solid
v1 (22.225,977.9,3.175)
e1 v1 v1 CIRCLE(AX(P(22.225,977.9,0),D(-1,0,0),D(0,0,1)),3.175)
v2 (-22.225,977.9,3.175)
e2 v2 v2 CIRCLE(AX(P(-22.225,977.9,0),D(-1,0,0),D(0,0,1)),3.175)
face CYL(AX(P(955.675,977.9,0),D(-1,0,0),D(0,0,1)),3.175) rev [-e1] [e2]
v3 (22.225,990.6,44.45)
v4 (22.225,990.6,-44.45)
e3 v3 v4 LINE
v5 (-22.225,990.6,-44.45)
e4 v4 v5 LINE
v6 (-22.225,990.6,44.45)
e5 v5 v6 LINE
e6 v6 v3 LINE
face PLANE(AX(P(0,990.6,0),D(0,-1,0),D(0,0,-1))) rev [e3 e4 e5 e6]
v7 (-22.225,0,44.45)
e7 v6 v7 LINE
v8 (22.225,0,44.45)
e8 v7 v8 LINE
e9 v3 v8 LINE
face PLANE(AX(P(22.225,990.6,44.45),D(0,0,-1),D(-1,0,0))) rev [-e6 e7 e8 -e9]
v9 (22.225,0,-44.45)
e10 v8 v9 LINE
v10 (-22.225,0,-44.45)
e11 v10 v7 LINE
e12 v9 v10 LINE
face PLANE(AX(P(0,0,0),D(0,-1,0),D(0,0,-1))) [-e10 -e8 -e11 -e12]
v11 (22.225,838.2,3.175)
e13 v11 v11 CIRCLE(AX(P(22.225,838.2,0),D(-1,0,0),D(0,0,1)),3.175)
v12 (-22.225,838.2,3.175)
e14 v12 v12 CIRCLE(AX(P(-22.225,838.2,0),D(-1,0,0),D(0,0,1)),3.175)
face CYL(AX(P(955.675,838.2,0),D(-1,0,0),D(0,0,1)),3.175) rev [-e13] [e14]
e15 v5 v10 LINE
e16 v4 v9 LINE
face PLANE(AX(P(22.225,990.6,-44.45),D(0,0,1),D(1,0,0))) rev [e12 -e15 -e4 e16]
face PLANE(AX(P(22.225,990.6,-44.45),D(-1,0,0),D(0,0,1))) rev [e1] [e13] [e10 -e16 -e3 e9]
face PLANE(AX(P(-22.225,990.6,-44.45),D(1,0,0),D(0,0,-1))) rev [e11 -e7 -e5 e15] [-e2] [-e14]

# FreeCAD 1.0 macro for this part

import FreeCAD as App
import Part
import Sketcher
Q = App.Units.Quantity


def add_polygon(sketch, points):
    """Adds a closed chain of lines whose ends are joined by coincident constraints."""
    first, n = sketch.GeometryCount, len(points)
    for a, b in zip(points, points[1:] + points[:1]):
        sketch.addGeometry(Part.LineSegment(App.Vector(*a, 0), App.Vector(*b, 0)), False)
    for i in range(n):
        sketch.addConstraint(Sketcher.Constraint("Coincident", first + i, 2, first + (i + 1) % n, 1))

doc = App.newDocument("Part")
body = doc.addObject("PartDesign::Body", "Body")

sketch1 = body.newObject("Sketcher::SketchObject", "Sketch")
sketch1.AttachmentSupport = (doc.getObject("XZ_Plane"), [""])
sketch1.MapMode = "FlatFace"
add_polygon(sketch1, [(-22, -44), (-22, 44), (22, 44), (22, -44)])
sketch1.addConstraint([
    Sketcher.Constraint("Vertical", 0),
    Sketcher.Constraint("Horizontal", 1),
    Sketcher.Constraint("Vertical", 2),
    Sketcher.Constraint("Horizontal", 3),
    Sketcher.Constraint("Symmetric", 0, 2, 2, 2, -1, 1),
    Sketcher.Constraint("DistanceY", 0, 1, 0, 2, Q("3.5 in")),
    Sketcher.Constraint("DistanceX", 1, 1, 1, 2, Q("1.75 in")),
])
pad1 = body.newObject("PartDesign::Pad", "Pad")
pad1.Profile = sketch1
pad1.Length = Q("39 in")
pad1.Reversed = True

sketch2 = body.newObject("Sketcher::SketchObject", "Sketch001")
sketch2.AttachmentSupport = (doc.getObject("YZ_Plane"), [""])
sketch2.MapMode = "FlatFace"
sketch2.AttachmentOffset = App.Placement(App.Vector(0, 0, -0.875 * 25.4), App.Rotation())
sketch2.addGeometry([
    Part.Circle(App.Vector(977.9, 0, 0), App.Vector(0, 0, 1), 3.2),
    Part.Circle(App.Vector(838.2, 0, 0), App.Vector(0, 0, 1), 3.2),
], False)
sketch2.addConstraint([
    Sketcher.Constraint("Equal", 0, 1),
    Sketcher.Constraint("PointOnObject", 0, 3, -1),
    Sketcher.Constraint("PointOnObject", 1, 3, -1),
    Sketcher.Constraint("Diameter", 0, Q("0.25 in")),
    Sketcher.Constraint("DistanceX", -1, 1, 1, 3, Q("33 in")),
    Sketcher.Constraint("DistanceX", -1, 1, 0, 3, Q("38.5 in")),
])
pocket1 = body.newObject("PartDesign::Pocket", "Pocket")
pocket1.Profile = sketch2
pocket1.Length = Q("38.5 in")
pocket1.Reversed = True

doc.recompute()
